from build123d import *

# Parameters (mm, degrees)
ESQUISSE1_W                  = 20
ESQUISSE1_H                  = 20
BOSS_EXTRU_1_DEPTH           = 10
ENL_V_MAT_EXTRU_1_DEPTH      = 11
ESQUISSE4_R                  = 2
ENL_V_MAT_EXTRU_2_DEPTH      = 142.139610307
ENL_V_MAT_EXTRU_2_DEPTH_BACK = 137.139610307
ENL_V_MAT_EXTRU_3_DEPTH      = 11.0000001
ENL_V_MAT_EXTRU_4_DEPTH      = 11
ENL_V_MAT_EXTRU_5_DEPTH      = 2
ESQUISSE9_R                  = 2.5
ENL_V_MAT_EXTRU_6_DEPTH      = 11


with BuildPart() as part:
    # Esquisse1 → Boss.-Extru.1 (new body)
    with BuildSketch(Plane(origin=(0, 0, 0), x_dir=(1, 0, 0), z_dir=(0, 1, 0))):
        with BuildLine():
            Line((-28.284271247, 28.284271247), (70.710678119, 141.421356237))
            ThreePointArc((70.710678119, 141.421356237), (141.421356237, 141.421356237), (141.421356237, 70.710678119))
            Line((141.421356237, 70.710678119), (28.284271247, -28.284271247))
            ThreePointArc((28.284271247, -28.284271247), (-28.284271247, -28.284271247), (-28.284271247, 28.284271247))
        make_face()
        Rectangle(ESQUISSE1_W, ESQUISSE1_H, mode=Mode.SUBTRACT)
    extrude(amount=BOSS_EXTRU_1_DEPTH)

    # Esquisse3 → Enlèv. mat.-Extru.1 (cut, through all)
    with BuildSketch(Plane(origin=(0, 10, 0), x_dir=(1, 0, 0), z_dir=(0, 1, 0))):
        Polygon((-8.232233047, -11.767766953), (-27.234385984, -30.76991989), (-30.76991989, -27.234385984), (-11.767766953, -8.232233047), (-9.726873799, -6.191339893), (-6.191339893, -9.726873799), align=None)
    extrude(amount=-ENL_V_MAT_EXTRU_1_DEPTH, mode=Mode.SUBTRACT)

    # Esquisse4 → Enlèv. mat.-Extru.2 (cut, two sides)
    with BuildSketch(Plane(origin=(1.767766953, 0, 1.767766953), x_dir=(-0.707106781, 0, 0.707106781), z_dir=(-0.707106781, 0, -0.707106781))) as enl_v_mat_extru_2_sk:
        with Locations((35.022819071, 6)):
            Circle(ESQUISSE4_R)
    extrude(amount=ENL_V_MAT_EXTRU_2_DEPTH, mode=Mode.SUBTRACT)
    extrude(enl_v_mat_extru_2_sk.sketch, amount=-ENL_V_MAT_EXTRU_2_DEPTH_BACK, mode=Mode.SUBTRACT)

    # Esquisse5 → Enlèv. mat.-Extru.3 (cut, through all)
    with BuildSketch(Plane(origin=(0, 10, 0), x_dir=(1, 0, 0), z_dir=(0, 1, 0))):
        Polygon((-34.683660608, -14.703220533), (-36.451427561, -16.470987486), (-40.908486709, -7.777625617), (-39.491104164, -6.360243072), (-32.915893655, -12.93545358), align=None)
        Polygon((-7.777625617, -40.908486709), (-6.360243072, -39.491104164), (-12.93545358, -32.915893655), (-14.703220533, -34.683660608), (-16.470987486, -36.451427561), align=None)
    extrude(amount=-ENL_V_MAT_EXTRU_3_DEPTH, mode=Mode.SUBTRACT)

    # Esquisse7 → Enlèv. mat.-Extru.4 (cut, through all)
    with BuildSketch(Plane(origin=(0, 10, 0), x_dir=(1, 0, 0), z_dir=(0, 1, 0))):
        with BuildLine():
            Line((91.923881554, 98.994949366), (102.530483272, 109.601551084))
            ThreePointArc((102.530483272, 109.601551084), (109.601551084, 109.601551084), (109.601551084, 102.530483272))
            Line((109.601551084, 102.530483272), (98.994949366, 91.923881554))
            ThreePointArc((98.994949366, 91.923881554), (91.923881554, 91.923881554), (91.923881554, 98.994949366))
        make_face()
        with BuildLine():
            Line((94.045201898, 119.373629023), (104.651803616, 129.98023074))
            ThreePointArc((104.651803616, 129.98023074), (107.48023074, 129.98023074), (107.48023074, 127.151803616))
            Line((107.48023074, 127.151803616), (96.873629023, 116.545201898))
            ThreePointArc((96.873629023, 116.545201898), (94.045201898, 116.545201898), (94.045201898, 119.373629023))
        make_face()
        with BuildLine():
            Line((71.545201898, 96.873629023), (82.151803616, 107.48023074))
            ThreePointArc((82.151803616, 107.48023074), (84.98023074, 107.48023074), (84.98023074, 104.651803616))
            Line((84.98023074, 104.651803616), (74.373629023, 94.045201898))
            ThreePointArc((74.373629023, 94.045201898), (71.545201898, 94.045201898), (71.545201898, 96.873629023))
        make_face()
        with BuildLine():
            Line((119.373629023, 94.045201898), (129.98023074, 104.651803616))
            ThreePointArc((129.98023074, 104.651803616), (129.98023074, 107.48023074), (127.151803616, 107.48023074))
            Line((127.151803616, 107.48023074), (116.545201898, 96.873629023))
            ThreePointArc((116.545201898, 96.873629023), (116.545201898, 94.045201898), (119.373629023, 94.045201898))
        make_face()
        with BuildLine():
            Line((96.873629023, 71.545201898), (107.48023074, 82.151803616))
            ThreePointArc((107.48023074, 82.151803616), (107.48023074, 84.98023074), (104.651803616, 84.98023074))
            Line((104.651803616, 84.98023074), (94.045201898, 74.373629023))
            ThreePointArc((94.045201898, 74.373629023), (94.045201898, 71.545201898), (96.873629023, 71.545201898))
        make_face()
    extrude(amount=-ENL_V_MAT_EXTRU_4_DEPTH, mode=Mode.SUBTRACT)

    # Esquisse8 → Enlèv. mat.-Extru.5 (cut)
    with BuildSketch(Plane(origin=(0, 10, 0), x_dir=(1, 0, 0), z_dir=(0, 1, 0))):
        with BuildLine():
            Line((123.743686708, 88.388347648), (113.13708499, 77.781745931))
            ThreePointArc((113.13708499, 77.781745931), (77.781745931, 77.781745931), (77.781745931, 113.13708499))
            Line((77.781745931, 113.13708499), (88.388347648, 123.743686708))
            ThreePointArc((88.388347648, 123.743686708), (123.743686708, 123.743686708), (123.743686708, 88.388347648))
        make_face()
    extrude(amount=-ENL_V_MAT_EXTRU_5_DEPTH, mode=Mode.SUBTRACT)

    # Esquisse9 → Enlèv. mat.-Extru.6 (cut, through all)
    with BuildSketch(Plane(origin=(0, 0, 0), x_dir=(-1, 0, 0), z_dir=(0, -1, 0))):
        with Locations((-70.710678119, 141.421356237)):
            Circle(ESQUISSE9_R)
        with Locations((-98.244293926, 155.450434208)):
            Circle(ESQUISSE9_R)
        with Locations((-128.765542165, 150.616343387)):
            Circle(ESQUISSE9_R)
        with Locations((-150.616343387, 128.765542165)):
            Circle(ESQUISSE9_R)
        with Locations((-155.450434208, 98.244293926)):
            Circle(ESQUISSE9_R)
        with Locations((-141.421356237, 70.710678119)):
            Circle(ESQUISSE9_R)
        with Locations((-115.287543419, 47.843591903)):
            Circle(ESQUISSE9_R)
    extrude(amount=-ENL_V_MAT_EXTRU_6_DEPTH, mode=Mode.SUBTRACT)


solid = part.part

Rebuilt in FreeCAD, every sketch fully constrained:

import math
import FreeCAD as App
import Part
import Sketcher

V = App.Vector
Q = App.Units.Quantity


def add_polygon(sketch, points):
    """Adds a closed chain of lines whose ends are joined by coincident constraints."""
    first, n = sketch.GeometryCount, len(points)
    for a, b in zip(points, points[1:] + points[:1]):
        sketch.addGeometry(Part.LineSegment(App.Vector(*a, 0), App.Vector(*b, 0)), False)
    for i in range(n):
        sketch.addConstraint(Sketcher.Constraint("Coincident", first + i, 2, first + (i + 1) % n, 1))

doc = App.newDocument("Part")
body = doc.addObject("PartDesign::Body", "Body")

# Sketch on XZ plane
sketch1 = body.newObject("Sketcher::SketchObject", "Sketch")
sketch1.AttachmentSupport = (doc.getObject("XZ_Plane"), [""])
sketch1.MapMode = "FlatFace"
sketch1.addGeometry(Part.LineSegment(V(70.710678, -141.421356, 0), V(-28.284271, -28.284271, 0)), False)  # 0
sketch1.addGeometry(Part.ArcOfCircle(Part.Circle(V(0, 0, 0), V(0, 0, 1), 40), math.radians(45), math.radians(225)), False)  # 1
sketch1.addGeometry(Part.LineSegment(V(28.284271, 28.284271, 0), V(141.421356, -70.710678, 0)), False)  # 2
sketch1.addGeometry(Part.ArcOfCircle(Part.Circle(V(106.066017, -106.066017, 0), V(0, 0, 1), 50), math.radians(-135), math.radians(45)), False)  # 3
add_polygon(sketch1, [(-10, 10), (-10, -10), (10, -10), (10, 10)])  # lines 4-7
sketch1.addConstraint(Sketcher.Constraint("Coincident", 0, 2, 1, 2))
sketch1.addConstraint(Sketcher.Constraint("Coincident", 1, 1, 2, 1))
sketch1.addConstraint(Sketcher.Constraint("Coincident", 2, 2, 3, 2))
sketch1.addConstraint(Sketcher.Constraint("Coincident", 3, 1, 0, 1))
sketch1.addConstraint(Sketcher.Constraint("Vertical", 4))
sketch1.addConstraint(Sketcher.Constraint("Horizontal", 5))
sketch1.addConstraint(Sketcher.Constraint("Vertical", 6))
sketch1.addConstraint(Sketcher.Constraint("Horizontal", 7))
sketch1.addConstraint(Sketcher.Constraint("Coincident", 1, 3, -1, 1))
sketch1.addConstraint(Sketcher.Constraint("Symmetric", 4, 2, 6, 2, -1, 1))
sketch1.addConstraint(Sketcher.Constraint("Equal", 7, 4))
sketch1.addConstraint(Sketcher.Constraint("Equal", 0, 2))
sketch1.addConstraint(Sketcher.Constraint("Radius", 1, 40.0))
sketch1.addConstraint(Sketcher.Constraint("Radius", 3, 50.0))
sketch1.addConstraint(Sketcher.Constraint("DistanceX", 5, 1, 5, 2, 20.0))
sketch1.addConstraint(Sketcher.Constraint("DistanceX", 0, 2, -1, 1, 28.284271))
sketch1.addConstraint(Sketcher.Constraint("DistanceX", -1, 1, 1, 1, 28.284271))
sketch1.addConstraint(Sketcher.Constraint("DistanceY", 2, 2, -1, 1, 70.710678))
sketch1.addConstraint(Sketcher.Constraint("DistanceX", -1, 1, 3, 1, 70.710678))
sketch1.addConstraint(Sketcher.Constraint("DistanceX", 0, 2, 3, 3, 134.350288))
pad1 = body.newObject("PartDesign::Pad", "Pad")
pad1.Profile = sketch1
pad1.Length = 10
pad1.Reversed = True

# Sketch on XZ plane
sketch2 = body.newObject("Sketcher::SketchObject", "Sketch001")
sketch2.AttachmentSupport = (doc.getObject("XZ_Plane"), [""])
sketch2.MapMode = "FlatFace"
sketch2.AttachmentOffset = App.Placement(V(0, 0, -10), App.Rotation())
add_polygon(sketch2, [(-27.234386, 30.76992), (-6.19134, 9.726874), (-9.726874, 6.19134), (-30.76992, 27.234386)])  # lines 0-3
sketch2.addConstraint(Sketcher.Constraint("Perpendicular", 0, 1))
sketch2.addConstraint(Sketcher.Constraint("Perpendicular", 1, 2))
sketch2.addConstraint(Sketcher.Constraint("Perpendicular", 2, 3))
sketch2.addConstraint(Sketcher.Constraint("Angle", 0, Q("-45 deg")))
sketch2.addConstraint(Sketcher.Constraint("Distance", 1, 5.0))
sketch2.addConstraint(Sketcher.Constraint("Distance", 0, 29.759361))
sketch2.addConstraint(Sketcher.Constraint("DistanceX", 0, 2, -1, 1, 6.19134))
sketch2.addConstraint(Sketcher.Constraint("DistanceY", -1, 1, 1, 2, 6.19134))
pocket1 = body.newObject("PartDesign::Pocket", "Pocket")
pocket1.Profile = sketch2
pocket1.Type = "ThroughAll"
pocket1.Reversed = True

# Sketch on an angled plane
sketch3 = body.newObject("Sketcher::SketchObject", "Sketch002")
sketch3.Placement = App.Placement(V(1.767767, 0, 1.767767), App.Rotation(V(-0.707106781, 0, 0.707106781), V(0, 0.999999999, 0), V(-0.707106781, 0, -0.707106781), "ZXY"))
sketch3.addGeometry(Part.Circle(V(35.022819, 6, 0), V(0, 0, 1), 2), False)
sketch3.addConstraint(Sketcher.Constraint("Diameter", 0, 4.0))
sketch3.addConstraint(Sketcher.Constraint("DistanceY", -1, 1, 0, 3, 6.0))
sketch3.addConstraint(Sketcher.Constraint("DistanceX", -1, 1, 0, 3, 35.022819))
pocket2 = body.newObject("PartDesign::Pocket", "Pocket001")
pocket2.Profile = sketch3
pocket2.Type = "ThroughAll"
pocket2.Midplane = True

# Sketch on XZ plane
sketch4 = body.newObject("Sketcher::SketchObject", "Sketch003")
sketch4.AttachmentSupport = (doc.getObject("XZ_Plane"), [""])
sketch4.MapMode = "FlatFace"
sketch4.AttachmentOffset = App.Placement(V(0, 0, -10), App.Rotation())
add_polygon(sketch4, [(-36.451428, 16.470987), (-32.915894, 12.935454), (-39.491104, 6.360243), (-40.908487, 7.777626)])  # lines 0-3
add_polygon(sketch4, [(-7.777626, 40.908487), (-6.360243, 39.491104), (-12.935454, 32.915894), (-16.470987, 36.451428)])  # lines 4-7
sketch4.addConstraint(Sketcher.Constraint("Perpendicular", 0, 1))
sketch4.addConstraint(Sketcher.Constraint("Perpendicular", 1, 2))
sketch4.addConstraint(Sketcher.Constraint("Parallel", 2, 4))
sketch4.addConstraint(Sketcher.Constraint("Perpendicular", 4, 5))
sketch4.addConstraint(Sketcher.Constraint("Perpendicular", 5, 6))
sketch4.addConstraint(Sketcher.Constraint("Equal", 2, 4))
sketch4.addConstraint(Sketcher.Constraint("Equal", 1, 5))
sketch4.addConstraint(Sketcher.Constraint("Equal", 0, 6))
sketch4.addConstraint(Sketcher.Constraint("Angle", 0, Q("-45 deg")))
sketch4.addConstraint(Sketcher.Constraint("Distance", 0, 5.0))
sketch4.addConstraint(Sketcher.Constraint("DistanceX", 2, 2, 6, 2, 24.437499))
sketch4.addConstraint(Sketcher.Constraint("DistanceY", 2, 2, 6, 2, 28.673802))
sketch4.addConstraint(Sketcher.Constraint("DistanceX", 3, 2, 7, 2, 28.673802))
sketch4.addConstraint(Sketcher.Constraint("Distance", 1, 9.298752))
sketch4.addConstraint(Sketcher.Constraint("DistanceX", 0, 2, -1, 1, 32.915894))
sketch4.addConstraint(Sketcher.Constraint("DistanceY", -1, 1, 0, 2, 12.935454))
pocket3 = body.newObject("PartDesign::Pocket", "Pocket002")
pocket3.Profile = sketch4
pocket3.Type = "ThroughAll"
pocket3.Reversed = True

# Sketch on XZ plane
sketch5 = body.newObject("Sketcher::SketchObject", "Sketch004")
sketch5.AttachmentSupport = (doc.getObject("XZ_Plane"), [""])
sketch5.MapMode = "FlatFace"
sketch5.AttachmentOffset = App.Placement(V(0, 0, -10), App.Rotation())
sketch5.addGeometry(Part.LineSegment(V(102.530483, -109.601551, 0), V(91.923882, -98.994949, 0)), False)
sketch5.addGeometry(Part.ArcOfCircle(Part.Circle(V(95.459415, -95.459415, 0), V(0, 0, 1), 5), math.radians(45), math.radians(225)), False)
sketch5.addGeometry(Part.LineSegment(V(98.994949, -91.923882, 0), V(109.601551, -102.530483, 0)), False)
sketch5.addGeometry(Part.ArcOfCircle(Part.Circle(V(106.066017, -106.066017, 0), V(0, 0, 1), 5), math.radians(-135), math.radians(45)), False)
sketch5.addGeometry(Part.LineSegment(V(104.651804, -129.980231, 0), V(94.045202, -119.373629, 0)), False)
sketch5.addGeometry(Part.ArcOfCircle(Part.Circle(V(95.459415, -117.959415, 0), V(0, 0, 1), 2), math.radians(45), math.radians(225)), False)
sketch5.addGeometry(Part.LineSegment(V(96.873629, -116.545202, 0), V(107.480231, -127.151804, 0)), False)
sketch5.addGeometry(Part.ArcOfCircle(Part.Circle(V(106.066017, -128.566017, 0), V(0, 0, 1), 2), math.radians(-135), math.radians(45)), False)
sketch5.addGeometry(Part.LineSegment(V(82.151804, -107.480231, 0), V(71.545202, -96.873629, 0)), False)
sketch5.addGeometry(Part.ArcOfCircle(Part.Circle(V(72.959415, -95.459415, 0), V(0, 0, 1), 2), math.radians(45), math.radians(225)), False)
sketch5.addGeometry(Part.LineSegment(V(74.373629, -94.045202, 0), V(84.980231, -104.651804, 0)), False)
sketch5.addGeometry(Part.ArcOfCircle(Part.Circle(V(83.566017, -106.066017, 0), V(0, 0, 1), 2), math.radians(-135), math.radians(45)), False)
sketch5.addGeometry(Part.LineSegment(V(119.373629, -94.045202, 0), V(129.980231, -104.651804, 0)), False)
sketch5.addGeometry(Part.ArcOfCircle(Part.Circle(V(128.566017, -106.066017, 0), V(0, 0, 1), 2), math.radians(-135), math.radians(45)), False)
sketch5.addGeometry(Part.LineSegment(V(127.151804, -107.480231, 0), V(116.545202, -96.873629, 0)), False)
sketch5.addGeometry(Part.ArcOfCircle(Part.Circle(V(117.959415, -95.459415, 0), V(0, 0, 1), 2), math.radians(45), math.radians(225)), False)
sketch5.addGeometry(Part.LineSegment(V(96.873629, -71.545202, 0), V(107.480231, -82.151804, 0)), False)
sketch5.addGeometry(Part.ArcOfCircle(Part.Circle(V(106.066017, -83.566017, 0), V(0, 0, 1), 2), math.radians(-135), math.radians(45)), False)
sketch5.addGeometry(Part.LineSegment(V(104.651804, -84.980231, 0), V(94.045202, -74.373629, 0)), False)
sketch5.addGeometry(Part.ArcOfCircle(Part.Circle(V(95.459415, -72.959415, 0), V(0, 0, 1), 2), math.radians(45), math.radians(225)), False)
sketch5.addConstraint(Sketcher.Constraint("Tangent", 0, 2, 1, 2))
sketch5.addConstraint(Sketcher.Constraint("Tangent", 1, 1, 2, 1))
sketch5.addConstraint(Sketcher.Constraint("Tangent", 2, 2, 3, 2))
sketch5.addConstraint(Sketcher.Constraint("Tangent", 3, 1, 0, 1))
sketch5.addConstraint(Sketcher.Constraint("Tangent", 4, 2, 5, 2))
sketch5.addConstraint(Sketcher.Constraint("Tangent", 5, 1, 6, 1))
sketch5.addConstraint(Sketcher.Constraint("Tangent", 6, 2, 7, 2))
sketch5.addConstraint(Sketcher.Constraint("Tangent", 7, 1, 4, 1))
sketch5.addConstraint(Sketcher.Constraint("Tangent", 8, 2, 9, 2))
sketch5.addConstraint(Sketcher.Constraint("Tangent", 9, 1, 10, 1))
sketch5.addConstraint(Sketcher.Constraint("Tangent", 10, 2, 11, 2))
sketch5.addConstraint(Sketcher.Constraint("Tangent", 11, 1, 8, 1))
sketch5.addConstraint(Sketcher.Constraint("Tangent", 12, 2, 13, 2))
sketch5.addConstraint(Sketcher.Constraint("Tangent", 13, 1, 14, 1))
sketch5.addConstraint(Sketcher.Constraint("Tangent", 14, 2, 15, 2))
sketch5.addConstraint(Sketcher.Constraint("Tangent", 15, 1, 12, 1))
sketch5.addConstraint(Sketcher.Constraint("Tangent", 16, 2, 17, 2))
sketch5.addConstraint(Sketcher.Constraint("Tangent", 17, 1, 18, 1))
sketch5.addConstraint(Sketcher.Constraint("Tangent", 18, 2, 19, 2))
sketch5.addConstraint(Sketcher.Constraint("Tangent", 19, 1, 16, 1))
sketch5.addConstraint(Sketcher.Constraint("Equal", 1, 3))
sketch5.addConstraint(Sketcher.Constraint("Equal", 5, 7))
sketch5.addConstraint(Sketcher.Constraint("Equal", 7, 9))
sketch5.addConstraint(Sketcher.Constraint("Equal", 9, 11))
sketch5.addConstraint(Sketcher.Constraint("Equal", 11, 13))
sketch5.addConstraint(Sketcher.Constraint("Equal", 13, 15))
sketch5.addConstraint(Sketcher.Constraint("Equal", 15, 17))
sketch5.addConstraint(Sketcher.Constraint("Equal", 17, 19))
sketch5.addConstraint(Sketcher.Constraint("Parallel", 2, 4))
sketch5.addConstraint(Sketcher.Constraint("Parallel", 6, 8))
sketch5.addConstraint(Sketcher.Constraint("Parallel", 10, 12))
sketch5.addConstraint(Sketcher.Constraint("Parallel", 14, 16))
sketch5.addConstraint(Sketcher.Constraint("Horizontal", 1, 3, 9, 3))
sketch5.addConstraint(Sketcher.Constraint("Horizontal", 3, 3, 11, 3))
sketch5.addConstraint(Sketcher.Constraint("Horizontal", 11, 3, 13, 3))
sketch5.addConstraint(Sketcher.Constraint("Horizontal", 9, 3, 15, 3))
sketch5.addConstraint(Sketcher.Constraint("Vertical", 1, 3, 5, 3))
sketch5.addConstraint(Sketcher.Constraint("Vertical", 3, 3, 7, 3))
sketch5.addConstraint(Sketcher.Constraint("Vertical", 7, 3, 17, 3))
sketch5.addConstraint(Sketcher.Constraint("Vertical", 5, 3, 19, 3))
sketch5.addConstraint(Sketcher.Constraint("Radius", 1, 5.0))
sketch5.addConstraint(Sketcher.Constraint("Radius", 5, 2.0))
sketch5.addConstraint(Sketcher.Constraint("Angle", 0, Q("135 deg")))
sketch5.addConstraint(Sketcher.Constraint("Distance", 0, 15.0))
sketch5.addConstraint(Sketcher.Constraint("DistanceX", 11, 3, 13, 3, 45.0))
sketch5.addConstraint(Sketcher.Constraint("DistanceY", 5, 3, 1, 3, 22.5))
sketch5.addConstraint(Sketcher.Constraint("DistanceX", 9, 3, 1, 3, 22.5))
sketch5.addConstraint(Sketcher.Constraint("DistanceY", 3, 3, 17, 3, 22.5))
sketch5.addConstraint(Sketcher.Constraint("DistanceX", -1, 1, 4, 2, 94.045202))
sketch5.addConstraint(Sketcher.Constraint("DistanceY", 5, 1, -1, 1, 116.545202))
pocket4 = body.newObject("PartDesign::Pocket", "Pocket003")
pocket4.Profile = sketch5
pocket4.Type = "ThroughAll"
pocket4.Reversed = True

# Sketch on XZ plane
sketch6 = body.newObject("Sketcher::SketchObject", "Sketch005")
sketch6.AttachmentSupport = (doc.getObject("XZ_Plane"), [""])
sketch6.MapMode = "FlatFace"
sketch6.AttachmentOffset = App.Placement(V(0, 0, -10), App.Rotation())
sketch6.addGeometry(Part.LineSegment(V(113.137085, -77.781746, 0), V(123.743687, -88.388348, 0)), False)
sketch6.addGeometry(Part.ArcOfCircle(Part.Circle(V(106.066017, -106.066017, 0), V(0, 0, 1), 25), math.radians(-135), math.radians(45)), False)
sketch6.addGeometry(Part.LineSegment(V(88.388348, -123.743687, 0), V(77.781746, -113.137085, 0)), False)
sketch6.addGeometry(Part.ArcOfCircle(Part.Circle(V(95.459415, -95.459415, 0), V(0, 0, 1), 25), math.radians(45), math.radians(225)), False)
sketch6.addConstraint(Sketcher.Constraint("Tangent", 0, 2, 1, 2))
sketch6.addConstraint(Sketcher.Constraint("Tangent", 1, 1, 2, 1))
sketch6.addConstraint(Sketcher.Constraint("Tangent", 2, 2, 3, 2))
sketch6.addConstraint(Sketcher.Constraint("Tangent", 3, 1, 0, 1))
sketch6.addConstraint(Sketcher.Constraint("Equal", 1, 3))
sketch6.addConstraint(Sketcher.Constraint("Radius", 1, 25.0))
sketch6.addConstraint(Sketcher.Constraint("Angle", 0, Q("-45 deg")))
sketch6.addConstraint(Sketcher.Constraint("Distance", 0, 15.0))
sketch6.addConstraint(Sketcher.Constraint("DistanceX", -1, 1, 1, 3, 106.066017))
sketch6.addConstraint(Sketcher.Constraint("DistanceY", 1, 3, -1, 1, 106.066017))
pocket5 = body.newObject("PartDesign::Pocket", "Pocket004")
pocket5.Profile = sketch6
pocket5.Length = 2
pocket5.Reversed = True

# Sketch on XZ plane
sketch7 = body.newObject("Sketcher::SketchObject", "Sketch006")
sketch7.AttachmentSupport = (doc.getObject("XZ_Plane"), [""])
sketch7.MapMode = "FlatFace"
sketch7.addGeometry(Part.Circle(V(70.710678, -141.421356, 0), V(0, 0, 1), 2.5), False)
sketch7.addGeometry(Part.Circle(V(98.244294, -155.450434, 0), V(0, 0, 1), 2.5), False)
sketch7.addGeometry(Part.Circle(V(128.765542, -150.616343, 0), V(0, 0, 1), 2.5), False)
sketch7.addGeometry(Part.Circle(V(150.616343, -128.765542, 0), V(0, 0, 1), 2.5), False)
sketch7.addGeometry(Part.Circle(V(155.450434, -98.244294, 0), V(0, 0, 1), 2.5), False)
sketch7.addGeometry(Part.Circle(V(141.421356, -70.710678, 0), V(0, 0, 1), 2.5), False)
sketch7.addGeometry(Part.Circle(V(115.287543, -47.843592, 0), V(0, 0, 1), 2.5), False)
sketch7.addConstraint(Sketcher.Constraint("Equal", 0, 1))
sketch7.addConstraint(Sketcher.Constraint("Equal", 1, 2))
sketch7.addConstraint(Sketcher.Constraint("Equal", 2, 3))
sketch7.addConstraint(Sketcher.Constraint("Equal", 3, 4))
sketch7.addConstraint(Sketcher.Constraint("Equal", 4, 5))
sketch7.addConstraint(Sketcher.Constraint("Equal", 5, 6))
sketch7.addConstraint(Sketcher.Constraint("Diameter", 0, 5.0))
sketch7.addConstraint(Sketcher.Constraint("DistanceX", 6, 3, 2, 3, 13.477999))
sketch7.addConstraint(Sketcher.Constraint("DistanceX", 2, 3, 3, 3, 21.850801))
sketch7.addConstraint(Sketcher.Constraint("DistanceY", 2, 3, 3, 3, 21.850801))
sketch7.addConstraint(Sketcher.Constraint("DistanceX", -1, 1, 0, 3, 70.710678))
sketch7.addConstraint(Sketcher.Constraint("DistanceY", 5, 3, -1, 1, 70.710678))
sketch7.addConstraint(Sketcher.Constraint("DistanceY", 6, 3, -1, 1, 47.843592))
sketch7.addConstraint(Sketcher.Constraint("DistanceX", 1, 3, 2, 3, 30.521248))
sketch7.addConstraint(Sketcher.Constraint("DistanceY", 1, 3, 2, 3, 4.834091))
sketch7.addConstraint(Sketcher.Constraint("DistanceX", 3, 3, 4, 3, 4.834091))
sketch7.addConstraint(Sketcher.Constraint("DistanceY", 3, 3, 4, 3, 30.521248))
sketch7.addConstraint(Sketcher.Constraint("DistanceX", 0, 3, 5, 3, 70.710678))
sketch7.addConstraint(Sketcher.Constraint("DistanceY", 0, 3, 5, 3, 70.710678))
sketch7.addConstraint(Sketcher.Constraint("DistanceY", 3, 3, 6, 3, 80.92195))
sketch7.addConstraint(Sketcher.Constraint("DistanceX", -1, 1, 1, 3, 98.244294))
pocket6 = body.newObject("PartDesign::Pocket", "Pocket005")
pocket6.Profile = sketch7
pocket6.Type = "ThroughAll"

doc.recompute()
